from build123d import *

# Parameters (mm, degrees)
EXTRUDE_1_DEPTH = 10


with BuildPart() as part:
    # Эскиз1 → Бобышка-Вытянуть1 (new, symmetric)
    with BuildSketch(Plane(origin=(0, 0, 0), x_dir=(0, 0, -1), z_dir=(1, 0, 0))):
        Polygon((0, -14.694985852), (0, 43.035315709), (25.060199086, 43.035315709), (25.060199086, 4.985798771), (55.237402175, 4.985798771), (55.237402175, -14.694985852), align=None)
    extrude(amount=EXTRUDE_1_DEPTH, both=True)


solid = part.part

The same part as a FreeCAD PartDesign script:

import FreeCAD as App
import Part
import Sketcher
Q = App.Units.Quantity


def add_polygon(sketch, points):
    """Adds a closed chain of lines whose ends are joined by coincident constraints."""
    first, n = sketch.GeometryCount, len(points)
    for a, b in zip(points, points[1:] + points[:1]):
        sketch.addGeometry(Part.LineSegment(App.Vector(*a, 0), App.Vector(*b, 0)), False)
    for i in range(n):
        sketch.addConstraint(Sketcher.Constraint("Coincident", first + i, 2, first + (i + 1) % n, 1))

doc = App.newDocument("Part")
body = doc.addObject("PartDesign::Body", "Body")

# Sketch on YZ plane
sketch1 = body.newObject("Sketcher::SketchObject", "Sketch")
sketch1.AttachmentSupport = (doc.getObject("YZ_Plane"), [""])
sketch1.MapMode = "FlatFace"
add_polygon(sketch1, [(43, 0), (-15, 0), (-15, -55), (5, -55), (5, -25), (43, -25)])  # lines 0-5
sketch1.addConstraint([
    Sketcher.Constraint("Horizontal", 0),
    Sketcher.Constraint("Vertical", 1),
    Sketcher.Constraint("Horizontal", 2),
    Sketcher.Constraint("Vertical", 3),
    Sketcher.Constraint("Horizontal", 4),
    Sketcher.Constraint("Vertical", 5),
    Sketcher.Constraint("PointOnObject", 0, 2, -1),
    Sketcher.Constraint("DistanceX", 0, 2, 0, 1, Q("57.730302 mm")),
    Sketcher.Constraint("DistanceY", 5, 1, 5, 2, Q("25.060199 mm")),
    Sketcher.Constraint("DistanceX", -1, 1, 2, 2, Q("4.985799 mm")),
    Sketcher.Constraint("DistanceX", 2, 1, 2, 2, Q("19.680785 mm")),
    Sketcher.Constraint("DistanceY", 1, 2, 1, 1, Q("55.237402 mm")),
])
pad1 = body.newObject("PartDesign::Pad", "Pad")
pad1.Profile = sketch1
pad1.Length = 20
pad1.Midplane = True

doc.recompute()
